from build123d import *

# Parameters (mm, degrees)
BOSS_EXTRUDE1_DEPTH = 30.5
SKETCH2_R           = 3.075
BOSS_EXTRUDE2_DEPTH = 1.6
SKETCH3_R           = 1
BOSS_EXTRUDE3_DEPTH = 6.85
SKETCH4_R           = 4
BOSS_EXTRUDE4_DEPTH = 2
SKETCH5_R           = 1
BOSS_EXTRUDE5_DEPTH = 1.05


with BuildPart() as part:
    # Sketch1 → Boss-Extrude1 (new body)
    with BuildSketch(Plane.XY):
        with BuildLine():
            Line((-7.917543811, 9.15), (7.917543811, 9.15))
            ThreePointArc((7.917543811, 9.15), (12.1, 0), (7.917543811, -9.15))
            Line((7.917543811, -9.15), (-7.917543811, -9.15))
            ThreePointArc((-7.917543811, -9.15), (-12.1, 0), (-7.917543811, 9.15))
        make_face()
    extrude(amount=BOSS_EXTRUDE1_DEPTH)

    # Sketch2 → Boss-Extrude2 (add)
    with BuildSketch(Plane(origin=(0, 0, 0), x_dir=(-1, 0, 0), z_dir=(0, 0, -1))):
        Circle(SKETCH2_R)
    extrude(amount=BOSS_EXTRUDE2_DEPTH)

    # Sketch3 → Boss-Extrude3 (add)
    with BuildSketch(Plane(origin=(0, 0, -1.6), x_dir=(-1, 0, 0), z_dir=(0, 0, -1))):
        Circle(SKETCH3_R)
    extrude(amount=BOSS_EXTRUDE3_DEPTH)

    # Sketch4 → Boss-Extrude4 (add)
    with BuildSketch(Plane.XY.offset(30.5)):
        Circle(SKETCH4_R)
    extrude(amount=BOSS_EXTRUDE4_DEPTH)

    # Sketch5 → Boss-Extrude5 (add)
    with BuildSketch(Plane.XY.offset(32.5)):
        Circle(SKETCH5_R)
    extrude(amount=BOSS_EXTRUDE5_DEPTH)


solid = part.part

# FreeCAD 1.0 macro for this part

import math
import FreeCAD as App
import Part
import Sketcher
Q = App.Units.Quantity

doc = App.newDocument("Part")
body = doc.addObject("PartDesign::Body", "Body")

sketch1 = body.newObject("Sketcher::SketchObject", "Sketch")
sketch1.AttachmentSupport = (doc.getObject("XY_Plane"), [""])
sketch1.MapMode = "FlatFace"
sketch1.addGeometry([
    Part.LineSegment(App.Vector(7.917544, 9.15, 0), App.Vector(-7.917544, 9.15, 0)),
    Part.ArcOfCircle(Part.Circle(App.Vector(0, 0, 0), App.Vector(0, 0, 1), 12.1), math.radians(130.869811), math.radians(229.130189)),
    Part.LineSegment(App.Vector(-7.917544, -9.15, 0), App.Vector(7.917544, -9.15, 0)),
    Part.ArcOfCircle(Part.Circle(App.Vector(0, 0, 0), App.Vector(0, 0, 1), 12.1), math.radians(-49.130189), math.radians(49.130189)),
], False)
sketch1.addConstraint([
    Sketcher.Constraint("Coincident", 0, 2, 1, 1),
    Sketcher.Constraint("Coincident", 1, 2, 2, 1),
    Sketcher.Constraint("Coincident", 2, 2, 3, 1),
    Sketcher.Constraint("Coincident", 3, 2, 0, 1),
    Sketcher.Constraint("Horizontal", 0),
    Sketcher.Constraint("Horizontal", 2),
    Sketcher.Constraint("Coincident", 1, 3, -1, 1),
    Sketcher.Constraint("Coincident", 3, 3, -1, 1),
    Sketcher.Constraint("Equal", 1, 3),
    Sketcher.Constraint("Vertical", 0, 2, 1, 2),
    Sketcher.Constraint("Radius", 1, Q("12.1 mm")),
    Sketcher.Constraint("DistanceY", 1, 2, 0, 2, Q("18.3 mm")),
])
pad1 = body.newObject("PartDesign::Pad", "Pad")
pad1.Profile = sketch1
pad1.Length = 30.5

sketch2 = body.newObject("Sketcher::SketchObject", "Sketch001")
sketch2.AttachmentSupport = (doc.getObject("XY_Plane"), [""])
sketch2.MapMode = "FlatFace"
sketch2.addGeometry(Part.Circle(App.Vector(0, 0, 0), App.Vector(0, 0, 1), 3.075), False)
sketch2.addConstraint([
    Sketcher.Constraint("Coincident", 0, 3, -1, 1),
    Sketcher.Constraint("Diameter", 0, Q("6.15 mm")),
])
pad2 = body.newObject("PartDesign::Pad", "Pad001")
pad2.Profile = sketch2
pad2.Length = 1.6
pad2.Reversed = True

sketch3 = body.newObject("Sketcher::SketchObject", "Sketch002")
sketch3.AttachmentSupport = (doc.getObject("XY_Plane"), [""])
sketch3.MapMode = "FlatFace"
sketch3.AttachmentOffset = App.Placement(App.Vector(0, 0, -1.6), App.Rotation())
sketch3.addGeometry(Part.Circle(App.Vector(0, 0, 0), App.Vector(0, 0, 1), 1), False)
sketch3.addConstraint([
    Sketcher.Constraint("Coincident", 0, 3, -1, 1),
    Sketcher.Constraint("Diameter", 0, Q("2 mm")),
])
pad3 = body.newObject("PartDesign::Pad", "Pad002")
pad3.Profile = sketch3
pad3.Length = 6.85
pad3.Reversed = True

sketch4 = body.newObject("Sketcher::SketchObject", "Sketch003")
sketch4.AttachmentSupport = (doc.getObject("XY_Plane"), [""])
sketch4.MapMode = "FlatFace"
sketch4.AttachmentOffset = App.Placement(App.Vector(0, 0, 30.5), App.Rotation())
sketch4.addGeometry(Part.Circle(App.Vector(0, 0, 0), App.Vector(0, 0, 1), 4), False)
sketch4.addConstraint([
    Sketcher.Constraint("Coincident", 0, 3, -1, 1),
    Sketcher.Constraint("Diameter", 0, Q("8 mm")),
])
pad4 = body.newObject("PartDesign::Pad", "Pad003")
pad4.Profile = sketch4
pad4.Length = 2

sketch5 = body.newObject("Sketcher::SketchObject", "Sketch004")
sketch5.AttachmentSupport = (doc.getObject("XY_Plane"), [""])
sketch5.MapMode = "FlatFace"
sketch5.AttachmentOffset = App.Placement(App.Vector(0, 0, 32.5), App.Rotation())
sketch5.addGeometry(Part.Circle(App.Vector(0, 0, 0), App.Vector(0, 0, 1), 1), False)
sketch5.addConstraint([
    Sketcher.Constraint("Coincident", 0, 3, -1, 1),
    Sketcher.Constraint("Diameter", 0, Q("2 mm")),
])
pad5 = body.newObject("PartDesign::Pad", "Pad004")
pad5.Profile = sketch5
pad5.Length = 1.05

doc.recompute()
